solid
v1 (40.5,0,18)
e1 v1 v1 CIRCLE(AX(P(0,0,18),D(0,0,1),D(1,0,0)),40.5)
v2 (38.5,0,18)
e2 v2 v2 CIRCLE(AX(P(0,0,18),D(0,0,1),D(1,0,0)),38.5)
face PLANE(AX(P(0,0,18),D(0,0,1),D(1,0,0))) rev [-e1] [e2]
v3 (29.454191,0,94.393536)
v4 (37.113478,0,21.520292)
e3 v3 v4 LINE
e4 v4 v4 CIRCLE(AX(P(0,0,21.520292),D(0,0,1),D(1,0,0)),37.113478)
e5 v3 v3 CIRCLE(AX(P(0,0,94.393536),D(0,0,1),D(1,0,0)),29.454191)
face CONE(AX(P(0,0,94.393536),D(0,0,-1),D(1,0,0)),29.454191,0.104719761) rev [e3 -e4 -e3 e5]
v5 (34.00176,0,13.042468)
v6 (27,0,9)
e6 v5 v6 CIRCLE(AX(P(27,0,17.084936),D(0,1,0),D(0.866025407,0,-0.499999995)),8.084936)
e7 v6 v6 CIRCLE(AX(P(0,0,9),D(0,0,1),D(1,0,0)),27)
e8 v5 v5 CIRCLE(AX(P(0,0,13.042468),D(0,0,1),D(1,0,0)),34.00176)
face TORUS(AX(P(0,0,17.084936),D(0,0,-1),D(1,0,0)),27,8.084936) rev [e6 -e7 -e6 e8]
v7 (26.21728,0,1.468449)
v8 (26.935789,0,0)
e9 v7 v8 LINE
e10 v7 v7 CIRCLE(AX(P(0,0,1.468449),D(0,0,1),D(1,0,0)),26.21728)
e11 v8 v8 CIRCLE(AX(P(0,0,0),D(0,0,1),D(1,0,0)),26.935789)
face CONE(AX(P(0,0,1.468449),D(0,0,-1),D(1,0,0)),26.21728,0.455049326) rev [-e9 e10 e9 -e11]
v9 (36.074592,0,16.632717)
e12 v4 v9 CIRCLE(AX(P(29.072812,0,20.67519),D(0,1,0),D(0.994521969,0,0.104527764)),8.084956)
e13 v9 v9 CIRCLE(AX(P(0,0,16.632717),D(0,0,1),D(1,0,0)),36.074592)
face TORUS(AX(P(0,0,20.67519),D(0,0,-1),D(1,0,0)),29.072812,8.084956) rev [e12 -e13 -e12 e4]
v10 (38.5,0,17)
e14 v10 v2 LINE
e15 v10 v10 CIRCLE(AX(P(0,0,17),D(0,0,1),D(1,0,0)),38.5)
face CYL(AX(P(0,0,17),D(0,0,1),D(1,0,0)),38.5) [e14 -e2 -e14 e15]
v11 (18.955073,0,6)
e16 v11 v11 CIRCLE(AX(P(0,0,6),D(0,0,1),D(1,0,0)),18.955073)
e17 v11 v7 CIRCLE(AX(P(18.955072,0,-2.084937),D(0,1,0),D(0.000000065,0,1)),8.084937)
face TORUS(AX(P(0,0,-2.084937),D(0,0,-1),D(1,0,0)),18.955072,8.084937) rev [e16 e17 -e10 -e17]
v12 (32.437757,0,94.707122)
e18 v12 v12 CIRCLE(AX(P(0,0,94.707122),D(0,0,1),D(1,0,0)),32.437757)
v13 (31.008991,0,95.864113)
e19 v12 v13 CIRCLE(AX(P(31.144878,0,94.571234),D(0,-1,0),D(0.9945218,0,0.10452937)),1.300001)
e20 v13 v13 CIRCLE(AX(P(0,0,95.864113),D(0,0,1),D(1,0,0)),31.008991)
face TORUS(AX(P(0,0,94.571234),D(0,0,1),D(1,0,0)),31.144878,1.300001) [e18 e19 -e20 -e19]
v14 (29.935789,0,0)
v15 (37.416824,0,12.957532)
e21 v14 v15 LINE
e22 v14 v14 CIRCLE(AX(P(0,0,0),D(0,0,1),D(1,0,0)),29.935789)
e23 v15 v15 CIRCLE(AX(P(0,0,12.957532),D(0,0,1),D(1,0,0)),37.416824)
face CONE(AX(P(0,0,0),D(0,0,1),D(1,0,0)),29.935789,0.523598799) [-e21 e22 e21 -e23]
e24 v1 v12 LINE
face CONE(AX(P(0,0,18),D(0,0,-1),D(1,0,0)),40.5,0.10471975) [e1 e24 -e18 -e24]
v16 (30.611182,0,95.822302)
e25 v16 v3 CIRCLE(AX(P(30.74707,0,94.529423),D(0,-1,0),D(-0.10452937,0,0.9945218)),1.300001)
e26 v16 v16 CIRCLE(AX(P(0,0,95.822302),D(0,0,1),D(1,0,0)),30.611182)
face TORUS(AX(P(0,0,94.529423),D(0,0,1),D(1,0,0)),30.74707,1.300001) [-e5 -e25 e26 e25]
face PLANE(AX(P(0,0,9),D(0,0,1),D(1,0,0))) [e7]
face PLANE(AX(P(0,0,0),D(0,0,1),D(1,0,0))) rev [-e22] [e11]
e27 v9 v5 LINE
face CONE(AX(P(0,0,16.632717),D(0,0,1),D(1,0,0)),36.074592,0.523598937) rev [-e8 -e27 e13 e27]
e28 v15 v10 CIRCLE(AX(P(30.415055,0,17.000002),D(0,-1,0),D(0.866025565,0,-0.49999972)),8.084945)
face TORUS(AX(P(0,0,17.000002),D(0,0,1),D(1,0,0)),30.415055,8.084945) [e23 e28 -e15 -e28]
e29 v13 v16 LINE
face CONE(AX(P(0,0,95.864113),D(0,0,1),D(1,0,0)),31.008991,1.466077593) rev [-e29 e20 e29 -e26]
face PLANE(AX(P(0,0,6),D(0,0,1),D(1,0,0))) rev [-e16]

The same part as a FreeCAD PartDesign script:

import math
import FreeCAD as App
import Part
import Sketcher

V = App.Vector
Q = App.Units.Quantity

doc = App.newDocument("Part")
body = doc.addObject("PartDesign::Body", "Body")

# Sketch on XZ plane
sketch1 = doc.addObject("Sketcher::SketchObject", "Sketch")
body.addObject(sketch1)
sketch1.AttachmentSupport = (doc.XZ_Plane, [""])
sketch1.MapMode = "FlatFace"
sketch1.addGeometry([
    Part.LineSegment(V(0, 9, 0), V(0, 6, 0)),  # 0
    Part.LineSegment(V(0, 6, 0), V(18.955073, 6, 0)),  # 1
    Part.ArcOfCircle(Part.Circle(V(18.955072, -2.084937, 0), V(0, 0, 1), 8.084937), math.radians(26.072429), math.radians(89.999996)),  # 2
    Part.LineSegment(V(26.21728, 1.468449, 0), V(26.935789, 0, 0)),  # 3
    Part.LineSegment(V(26.935789, 0, 0), V(29.935789, 0, 0)),  # 4
    Part.LineSegment(V(29.935789, 0, 0), V(37.416824, 12.957532, 0)),  # 5
    Part.ArcOfCircle(Part.Circle(V(30.415055, 17.000002, 0), V(0, 0, 1), 8.084945), math.radians(-29.999981), math.radians(-0.000018)),  # 6
    Part.LineSegment(V(38.5, 17, 0), V(38.5, 18, 0)),  # 7
    Part.LineSegment(V(38.5, 18, 0), V(40.5, 18, 0)),  # 8
    Part.LineSegment(V(40.5, 18, 0), V(32.437757, 94.707122, 0)),  # 9
    Part.ArcOfCircle(Part.Circle(V(31.144878, 94.571234, 0), V(0, 0, 1), 1.300001), math.radians(6.000052), math.radians(95.999991)),  # 10
    Part.LineSegment(V(31.008991, 95.864113, 0), V(30.611182, 95.822302, 0)),  # 11
    Part.ArcOfCircle(Part.Circle(V(30.74707, 94.529423, 0), V(0, 0, 1), 1.300001), math.radians(96.000052), math.radians(185.999991)),  # 12
    Part.LineSegment(V(29.454191, 94.393536, 0), V(37.113478, 21.520292, 0)),  # 13
    Part.ArcOfCircle(Part.Circle(V(29.072812, 20.67519, 0), V(0, 0, 1), 8.084956), math.radians(-29.999957), math.radians(5.99996)),  # 14
    Part.LineSegment(V(36.074592, 16.632717, 0), V(34.00176, 13.042468, 0)),  # 15
    Part.ArcOfCircle(Part.Circle(V(27, 17.084936, 0), V(0, 0, 1), 8.084936), math.radians(-90.000001), math.radians(-30)),  # 16
    Part.LineSegment(V(27, 9, 0), V(0, 9, 0)),  # 17
], False)
sketch1.addConstraint([
    Sketcher.Constraint("Coincident", 0, 2, 1, 1),
    Sketcher.Constraint("Tangent", 1, 2, 2, 2),
    Sketcher.Constraint("Tangent", 2, 1, 3, 1),
    Sketcher.Constraint("Coincident", 3, 2, 4, 1),
    Sketcher.Constraint("Coincident", 4, 2, 5, 1),
    Sketcher.Constraint("Tangent", 5, 2, 6, 1),
    Sketcher.Constraint("Tangent", 6, 2, 7, 1),
    Sketcher.Constraint("Coincident", 7, 2, 8, 1),
    Sketcher.Constraint("Coincident", 8, 2, 9, 1),
    Sketcher.Constraint("Tangent", 9, 2, 10, 1),
    Sketcher.Constraint("Tangent", 10, 2, 11, 1),
    Sketcher.Constraint("Tangent", 11, 2, 12, 1),
    Sketcher.Constraint("Tangent", 12, 2, 13, 1),
    Sketcher.Constraint("Tangent", 13, 2, 14, 2),
    Sketcher.Constraint("Tangent", 14, 1, 15, 1),
    Sketcher.Constraint("Tangent", 15, 2, 16, 2),
    Sketcher.Constraint("Tangent", 16, 1, 17, 1),
    Sketcher.Constraint("Coincident", 17, 2, 0, 1),
    Sketcher.Constraint("Vertical", 0),
    Sketcher.Constraint("Horizontal", 1),
    Sketcher.Constraint("Horizontal", 4),
    Sketcher.Constraint("Vertical", 7),
    Sketcher.Constraint("Horizontal", 8),
    Sketcher.Constraint("Horizontal", 17),
    Sketcher.Constraint("Equal", 10, 12),
    Sketcher.Constraint("Equal", 2, 16),
    Sketcher.Constraint("PointOnObject", 0, 2, -2),
    Sketcher.Constraint("PointOnObject", 3, 2, -1),
    Sketcher.Constraint("Perpendicular", 9, 11),
    Sketcher.Constraint("Perpendicular", 11, 13),
    Sketcher.Constraint("Parallel", 5, 15),
    Sketcher.Constraint("Equal", 4, 0),
    Sketcher.Constraint("Radius", 10, 1.300001),
    Sketcher.Constraint("DistanceX", 4, 1, 4, 2, 3.0),
    Sketcher.Constraint("DistanceX", 8, 1, 8, 2, 2.0),
    Sketcher.Constraint("DistanceX", 17, 2, 17, 1, 27.0),
    Sketcher.Constraint("DistanceY", 7, 1, 7, 2, 1.0),
    Sketcher.Constraint("Angle", 5, Q("59.999999 deg")),
    Sketcher.Constraint("Angle", 9, Q("96 deg")),
    Sketcher.Constraint("DistanceY", -1, 1, 0, 2, 6.0),
    Sketcher.Constraint("DistanceY", -1, 1, 6, 2, 17.0),
    Sketcher.Constraint("Distance", 11, 0.4),
    Sketcher.Constraint("DistanceX", -1, 1, 6, 2, 38.5),
    Sketcher.Constraint("Radius", 2, 8.084937),
    Sketcher.Constraint("Radius", 6, 8.084945),
    Sketcher.Constraint("Radius", 14, 8.084956),
    Sketcher.Constraint("DistanceY", -1, 1, 11, 2, 95.822302),
    Sketcher.Constraint("Distance", 3, 1.634808),
])
revolution = doc.addObject("PartDesign::Revolution", "Revolution")
body.addObject(revolution)
revolution.Profile = sketch1
revolution.ReferenceAxis = (sketch1, ["V_Axis"])
revolution.Angle = 360

doc.recompute()
